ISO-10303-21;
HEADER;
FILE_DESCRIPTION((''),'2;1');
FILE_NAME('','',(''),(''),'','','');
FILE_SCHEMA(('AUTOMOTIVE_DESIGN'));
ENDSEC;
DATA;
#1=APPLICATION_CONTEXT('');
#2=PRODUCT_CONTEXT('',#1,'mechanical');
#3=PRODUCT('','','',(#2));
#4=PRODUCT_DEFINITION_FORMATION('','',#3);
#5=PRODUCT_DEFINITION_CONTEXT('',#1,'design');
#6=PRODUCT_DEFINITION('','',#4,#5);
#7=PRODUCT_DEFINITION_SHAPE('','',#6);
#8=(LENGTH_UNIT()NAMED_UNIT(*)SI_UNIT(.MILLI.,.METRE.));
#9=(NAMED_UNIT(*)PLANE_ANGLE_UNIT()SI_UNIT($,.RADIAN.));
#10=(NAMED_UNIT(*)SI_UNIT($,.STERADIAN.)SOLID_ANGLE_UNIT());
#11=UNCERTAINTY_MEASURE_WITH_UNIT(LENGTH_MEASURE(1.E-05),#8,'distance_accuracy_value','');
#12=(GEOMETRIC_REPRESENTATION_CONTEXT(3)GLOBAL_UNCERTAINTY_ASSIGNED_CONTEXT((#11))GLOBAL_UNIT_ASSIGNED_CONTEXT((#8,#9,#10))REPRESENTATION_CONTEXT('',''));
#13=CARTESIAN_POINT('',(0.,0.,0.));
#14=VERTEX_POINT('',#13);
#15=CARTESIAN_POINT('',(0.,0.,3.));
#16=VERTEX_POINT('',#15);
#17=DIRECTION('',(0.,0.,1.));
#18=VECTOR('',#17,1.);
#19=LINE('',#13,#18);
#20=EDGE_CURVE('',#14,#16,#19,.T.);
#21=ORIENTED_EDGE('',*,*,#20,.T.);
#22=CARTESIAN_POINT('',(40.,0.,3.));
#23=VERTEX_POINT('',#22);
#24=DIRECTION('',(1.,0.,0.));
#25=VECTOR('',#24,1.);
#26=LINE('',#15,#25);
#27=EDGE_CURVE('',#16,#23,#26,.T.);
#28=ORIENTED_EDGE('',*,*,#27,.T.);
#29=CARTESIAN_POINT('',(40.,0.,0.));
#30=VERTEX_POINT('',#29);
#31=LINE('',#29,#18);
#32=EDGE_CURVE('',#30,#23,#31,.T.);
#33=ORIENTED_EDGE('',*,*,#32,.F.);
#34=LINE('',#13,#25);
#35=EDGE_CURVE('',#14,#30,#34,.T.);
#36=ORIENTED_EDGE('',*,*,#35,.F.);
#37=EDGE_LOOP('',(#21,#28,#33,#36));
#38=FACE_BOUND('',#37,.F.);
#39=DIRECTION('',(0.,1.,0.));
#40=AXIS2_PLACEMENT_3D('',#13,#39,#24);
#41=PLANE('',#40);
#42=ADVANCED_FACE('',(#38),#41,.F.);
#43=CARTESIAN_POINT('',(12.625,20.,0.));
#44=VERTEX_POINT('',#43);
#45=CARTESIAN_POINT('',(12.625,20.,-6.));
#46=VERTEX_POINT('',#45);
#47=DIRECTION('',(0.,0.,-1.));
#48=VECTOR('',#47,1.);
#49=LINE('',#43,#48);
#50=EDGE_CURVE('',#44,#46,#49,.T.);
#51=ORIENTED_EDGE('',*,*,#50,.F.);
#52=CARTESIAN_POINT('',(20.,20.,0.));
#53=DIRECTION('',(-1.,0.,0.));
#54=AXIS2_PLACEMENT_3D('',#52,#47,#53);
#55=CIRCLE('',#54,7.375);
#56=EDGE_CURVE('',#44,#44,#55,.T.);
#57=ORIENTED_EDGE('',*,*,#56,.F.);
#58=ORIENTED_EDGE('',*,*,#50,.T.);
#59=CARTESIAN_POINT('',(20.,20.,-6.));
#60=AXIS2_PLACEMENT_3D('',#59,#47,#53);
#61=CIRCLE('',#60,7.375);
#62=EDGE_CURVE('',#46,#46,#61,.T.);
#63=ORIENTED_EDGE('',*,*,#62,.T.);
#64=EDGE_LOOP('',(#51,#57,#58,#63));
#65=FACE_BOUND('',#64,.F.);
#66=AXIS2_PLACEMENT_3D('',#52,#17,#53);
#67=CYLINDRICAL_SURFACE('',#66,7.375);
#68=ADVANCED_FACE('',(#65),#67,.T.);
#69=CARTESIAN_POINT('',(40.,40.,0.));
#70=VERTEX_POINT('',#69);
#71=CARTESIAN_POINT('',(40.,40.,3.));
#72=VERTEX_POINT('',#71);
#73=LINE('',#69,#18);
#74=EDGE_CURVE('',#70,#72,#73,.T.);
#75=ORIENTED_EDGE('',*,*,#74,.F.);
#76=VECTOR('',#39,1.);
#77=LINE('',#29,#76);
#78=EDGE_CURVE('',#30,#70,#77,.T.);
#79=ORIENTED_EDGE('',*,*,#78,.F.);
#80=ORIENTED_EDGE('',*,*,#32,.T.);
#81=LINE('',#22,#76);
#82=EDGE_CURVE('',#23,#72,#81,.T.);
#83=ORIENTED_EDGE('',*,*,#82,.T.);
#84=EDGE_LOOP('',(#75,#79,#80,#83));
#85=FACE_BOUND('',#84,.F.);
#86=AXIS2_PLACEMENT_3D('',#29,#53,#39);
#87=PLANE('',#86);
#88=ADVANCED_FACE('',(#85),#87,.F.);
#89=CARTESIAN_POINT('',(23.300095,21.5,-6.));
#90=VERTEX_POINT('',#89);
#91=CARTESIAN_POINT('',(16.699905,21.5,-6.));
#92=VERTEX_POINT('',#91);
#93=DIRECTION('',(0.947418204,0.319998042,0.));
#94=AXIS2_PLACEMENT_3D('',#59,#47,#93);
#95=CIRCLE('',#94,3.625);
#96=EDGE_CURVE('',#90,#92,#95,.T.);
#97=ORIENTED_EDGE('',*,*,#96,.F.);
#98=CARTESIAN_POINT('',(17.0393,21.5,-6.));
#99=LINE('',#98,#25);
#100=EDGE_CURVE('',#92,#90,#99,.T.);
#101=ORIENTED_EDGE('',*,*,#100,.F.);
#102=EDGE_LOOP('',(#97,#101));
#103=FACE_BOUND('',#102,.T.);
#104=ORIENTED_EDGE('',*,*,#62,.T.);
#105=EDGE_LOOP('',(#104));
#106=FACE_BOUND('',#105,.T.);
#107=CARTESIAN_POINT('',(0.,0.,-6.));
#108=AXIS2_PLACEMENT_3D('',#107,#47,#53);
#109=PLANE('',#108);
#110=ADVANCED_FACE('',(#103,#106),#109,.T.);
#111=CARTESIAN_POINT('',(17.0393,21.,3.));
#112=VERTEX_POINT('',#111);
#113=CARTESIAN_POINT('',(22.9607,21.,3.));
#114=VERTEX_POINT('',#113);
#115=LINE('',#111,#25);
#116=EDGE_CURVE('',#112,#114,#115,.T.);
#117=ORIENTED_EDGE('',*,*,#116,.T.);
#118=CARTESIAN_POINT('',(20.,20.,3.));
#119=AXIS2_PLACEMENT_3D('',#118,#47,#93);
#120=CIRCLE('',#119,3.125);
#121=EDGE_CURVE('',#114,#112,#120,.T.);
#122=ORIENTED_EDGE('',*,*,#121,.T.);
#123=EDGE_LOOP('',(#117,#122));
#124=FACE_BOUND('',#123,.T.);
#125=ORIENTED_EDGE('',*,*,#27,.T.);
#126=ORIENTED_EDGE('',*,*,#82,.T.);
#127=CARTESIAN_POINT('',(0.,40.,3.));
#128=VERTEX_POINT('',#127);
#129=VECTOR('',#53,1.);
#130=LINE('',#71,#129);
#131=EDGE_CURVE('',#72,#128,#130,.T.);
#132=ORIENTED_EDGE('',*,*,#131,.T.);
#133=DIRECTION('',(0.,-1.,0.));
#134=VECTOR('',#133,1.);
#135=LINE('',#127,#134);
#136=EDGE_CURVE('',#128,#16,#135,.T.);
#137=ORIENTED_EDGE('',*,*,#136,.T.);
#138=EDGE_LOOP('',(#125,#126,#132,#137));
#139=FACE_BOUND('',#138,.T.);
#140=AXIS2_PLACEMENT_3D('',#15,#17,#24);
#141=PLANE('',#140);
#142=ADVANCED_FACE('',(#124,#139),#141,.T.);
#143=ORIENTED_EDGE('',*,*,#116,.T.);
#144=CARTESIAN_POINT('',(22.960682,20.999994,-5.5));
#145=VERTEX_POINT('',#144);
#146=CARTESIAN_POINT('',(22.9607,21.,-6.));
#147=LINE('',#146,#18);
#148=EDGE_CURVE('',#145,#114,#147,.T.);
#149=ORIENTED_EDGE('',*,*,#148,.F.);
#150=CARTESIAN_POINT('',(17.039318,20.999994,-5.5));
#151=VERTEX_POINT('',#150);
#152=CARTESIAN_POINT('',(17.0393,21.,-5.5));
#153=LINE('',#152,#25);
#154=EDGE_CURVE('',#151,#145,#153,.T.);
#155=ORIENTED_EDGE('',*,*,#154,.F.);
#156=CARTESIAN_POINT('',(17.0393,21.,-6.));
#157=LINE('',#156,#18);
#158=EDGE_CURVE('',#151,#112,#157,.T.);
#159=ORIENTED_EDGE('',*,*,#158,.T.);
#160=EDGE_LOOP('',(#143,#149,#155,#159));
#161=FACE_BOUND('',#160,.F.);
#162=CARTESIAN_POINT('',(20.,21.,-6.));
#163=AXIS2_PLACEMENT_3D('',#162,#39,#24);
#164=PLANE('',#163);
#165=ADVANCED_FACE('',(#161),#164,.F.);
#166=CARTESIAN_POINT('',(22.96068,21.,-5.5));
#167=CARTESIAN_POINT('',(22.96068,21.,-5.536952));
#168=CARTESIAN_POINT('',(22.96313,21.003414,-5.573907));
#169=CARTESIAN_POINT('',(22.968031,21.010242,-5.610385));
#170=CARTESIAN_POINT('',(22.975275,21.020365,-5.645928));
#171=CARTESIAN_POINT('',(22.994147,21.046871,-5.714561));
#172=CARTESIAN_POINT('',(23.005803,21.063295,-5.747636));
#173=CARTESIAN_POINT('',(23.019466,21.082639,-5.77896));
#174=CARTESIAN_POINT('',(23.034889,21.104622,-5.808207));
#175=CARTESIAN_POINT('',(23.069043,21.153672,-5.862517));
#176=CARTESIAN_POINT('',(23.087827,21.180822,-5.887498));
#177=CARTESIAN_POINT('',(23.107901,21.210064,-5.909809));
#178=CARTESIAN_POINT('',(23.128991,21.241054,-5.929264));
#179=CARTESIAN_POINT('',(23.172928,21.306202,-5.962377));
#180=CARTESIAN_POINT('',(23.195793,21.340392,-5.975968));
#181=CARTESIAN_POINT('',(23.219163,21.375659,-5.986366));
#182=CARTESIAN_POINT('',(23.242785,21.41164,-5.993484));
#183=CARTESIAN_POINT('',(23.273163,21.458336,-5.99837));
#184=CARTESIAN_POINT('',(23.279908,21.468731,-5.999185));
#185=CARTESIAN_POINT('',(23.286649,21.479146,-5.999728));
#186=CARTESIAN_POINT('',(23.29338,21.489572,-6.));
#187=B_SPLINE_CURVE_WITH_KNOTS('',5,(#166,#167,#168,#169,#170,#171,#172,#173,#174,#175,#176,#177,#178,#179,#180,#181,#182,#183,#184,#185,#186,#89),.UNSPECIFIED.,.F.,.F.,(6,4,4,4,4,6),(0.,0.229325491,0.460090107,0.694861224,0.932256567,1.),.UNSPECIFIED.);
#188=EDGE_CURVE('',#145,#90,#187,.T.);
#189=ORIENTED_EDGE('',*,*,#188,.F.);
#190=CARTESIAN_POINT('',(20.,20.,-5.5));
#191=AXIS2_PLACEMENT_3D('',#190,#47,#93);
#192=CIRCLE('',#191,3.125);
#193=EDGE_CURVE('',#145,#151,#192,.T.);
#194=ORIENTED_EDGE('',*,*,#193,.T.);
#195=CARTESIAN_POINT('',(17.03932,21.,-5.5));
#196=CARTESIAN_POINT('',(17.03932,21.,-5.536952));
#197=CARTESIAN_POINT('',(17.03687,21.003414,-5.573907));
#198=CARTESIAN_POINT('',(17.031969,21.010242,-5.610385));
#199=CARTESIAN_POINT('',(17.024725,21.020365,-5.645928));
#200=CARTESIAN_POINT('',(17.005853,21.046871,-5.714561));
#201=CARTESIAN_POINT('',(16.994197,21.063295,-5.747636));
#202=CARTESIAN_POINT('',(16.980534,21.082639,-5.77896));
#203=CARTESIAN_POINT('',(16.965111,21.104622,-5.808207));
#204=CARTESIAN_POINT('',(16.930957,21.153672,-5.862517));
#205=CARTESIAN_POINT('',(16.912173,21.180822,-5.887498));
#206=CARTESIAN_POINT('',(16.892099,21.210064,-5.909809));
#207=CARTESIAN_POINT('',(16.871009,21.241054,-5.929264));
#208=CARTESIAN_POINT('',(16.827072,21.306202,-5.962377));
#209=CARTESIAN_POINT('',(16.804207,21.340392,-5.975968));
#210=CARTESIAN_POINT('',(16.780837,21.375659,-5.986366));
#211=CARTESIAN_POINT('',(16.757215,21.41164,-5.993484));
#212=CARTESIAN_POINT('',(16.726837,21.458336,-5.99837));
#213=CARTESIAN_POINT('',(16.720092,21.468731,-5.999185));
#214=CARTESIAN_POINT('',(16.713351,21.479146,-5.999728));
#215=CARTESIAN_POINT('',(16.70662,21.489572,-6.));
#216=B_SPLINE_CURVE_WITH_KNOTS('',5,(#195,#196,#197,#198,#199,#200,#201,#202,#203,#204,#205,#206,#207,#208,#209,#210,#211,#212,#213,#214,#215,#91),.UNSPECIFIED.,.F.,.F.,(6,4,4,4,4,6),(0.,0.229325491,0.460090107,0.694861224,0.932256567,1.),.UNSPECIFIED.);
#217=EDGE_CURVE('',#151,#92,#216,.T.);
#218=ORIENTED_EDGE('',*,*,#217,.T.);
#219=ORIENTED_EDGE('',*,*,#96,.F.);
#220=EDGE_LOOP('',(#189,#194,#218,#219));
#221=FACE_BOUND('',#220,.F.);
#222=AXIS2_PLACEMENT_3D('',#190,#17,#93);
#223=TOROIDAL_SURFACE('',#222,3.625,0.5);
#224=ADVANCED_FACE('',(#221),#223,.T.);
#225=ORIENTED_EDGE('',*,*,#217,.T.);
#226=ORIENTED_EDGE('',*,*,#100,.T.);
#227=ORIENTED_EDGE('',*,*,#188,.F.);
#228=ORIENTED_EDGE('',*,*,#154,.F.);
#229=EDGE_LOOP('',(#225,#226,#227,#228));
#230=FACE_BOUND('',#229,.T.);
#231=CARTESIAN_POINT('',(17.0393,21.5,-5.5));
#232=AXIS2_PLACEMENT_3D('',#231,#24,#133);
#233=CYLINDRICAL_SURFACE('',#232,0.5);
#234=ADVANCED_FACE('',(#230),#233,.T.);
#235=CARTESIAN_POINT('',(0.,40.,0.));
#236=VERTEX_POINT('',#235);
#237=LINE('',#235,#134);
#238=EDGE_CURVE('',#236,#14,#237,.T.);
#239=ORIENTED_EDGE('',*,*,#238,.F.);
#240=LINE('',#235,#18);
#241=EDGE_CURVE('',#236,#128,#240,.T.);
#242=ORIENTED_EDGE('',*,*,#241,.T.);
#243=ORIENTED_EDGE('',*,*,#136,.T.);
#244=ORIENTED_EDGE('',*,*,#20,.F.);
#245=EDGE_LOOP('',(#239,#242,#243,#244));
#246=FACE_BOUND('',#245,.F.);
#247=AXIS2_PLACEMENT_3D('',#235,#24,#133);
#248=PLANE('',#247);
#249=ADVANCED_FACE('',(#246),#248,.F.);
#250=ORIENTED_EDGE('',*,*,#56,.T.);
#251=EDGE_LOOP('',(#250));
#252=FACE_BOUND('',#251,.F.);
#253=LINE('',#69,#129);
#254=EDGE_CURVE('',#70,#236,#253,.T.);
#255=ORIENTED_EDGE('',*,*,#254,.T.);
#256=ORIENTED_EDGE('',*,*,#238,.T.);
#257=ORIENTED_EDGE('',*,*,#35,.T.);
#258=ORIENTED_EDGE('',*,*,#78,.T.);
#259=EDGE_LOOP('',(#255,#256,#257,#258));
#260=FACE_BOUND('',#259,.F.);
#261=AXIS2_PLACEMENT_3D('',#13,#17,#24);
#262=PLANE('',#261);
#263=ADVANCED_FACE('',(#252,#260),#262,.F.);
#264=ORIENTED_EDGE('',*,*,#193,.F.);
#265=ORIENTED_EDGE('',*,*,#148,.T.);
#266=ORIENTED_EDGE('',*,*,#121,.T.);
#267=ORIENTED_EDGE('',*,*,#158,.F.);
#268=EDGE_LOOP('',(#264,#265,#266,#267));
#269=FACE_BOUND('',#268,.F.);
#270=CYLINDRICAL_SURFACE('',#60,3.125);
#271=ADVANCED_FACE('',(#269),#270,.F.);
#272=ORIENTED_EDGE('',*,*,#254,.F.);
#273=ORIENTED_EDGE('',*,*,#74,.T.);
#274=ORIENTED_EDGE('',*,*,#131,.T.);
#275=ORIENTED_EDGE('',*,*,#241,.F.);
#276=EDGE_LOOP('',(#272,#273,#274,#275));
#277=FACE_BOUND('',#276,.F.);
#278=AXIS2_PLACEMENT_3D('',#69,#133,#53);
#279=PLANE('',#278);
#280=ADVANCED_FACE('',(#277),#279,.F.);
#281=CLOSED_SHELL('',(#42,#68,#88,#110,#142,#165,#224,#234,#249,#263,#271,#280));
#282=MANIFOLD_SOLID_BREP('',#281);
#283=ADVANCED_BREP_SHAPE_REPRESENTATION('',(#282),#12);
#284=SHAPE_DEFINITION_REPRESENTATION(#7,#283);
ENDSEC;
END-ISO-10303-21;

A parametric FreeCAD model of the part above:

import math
import FreeCAD as App
import Part
import Sketcher
from FreeCAD import Vector


def edges_at(feature, points):
    """Names of the edges that pass closest to the given points."""
    edges = feature.Shape.Edges
    near = lambda p: min(range(len(edges)), key=lambda i: edges[i].distToShape(Part.Vertex(*p))[0])
    return sorted({f"Edge{near(p) + 1}" for p in points})


def add_polygon(sketch, points):
    """Adds a closed chain of lines whose ends are joined by coincident constraints."""
    first, n = sketch.GeometryCount, len(points)
    for a, b in zip(points, points[1:] + points[:1]):
        sketch.addGeometry(Part.LineSegment(App.Vector(*a, 0), App.Vector(*b, 0)), False)
    for i in range(n):
        sketch.addConstraint(Sketcher.Constraint("Coincident", first + i, 2, first + (i + 1) % n, 1))

doc = App.newDocument("Part")
body = doc.addObject("PartDesign::Body", "Body")

# Sketch on XY plane
sketch1 = doc.addObject("Sketcher::SketchObject", "Sketch")
body.addObject(sketch1)
sketch1.AttachmentSupport = (doc.XY_Plane, [""])
sketch1.MapMode = "FlatFace"
add_polygon(sketch1, [(0, 40), (0, 0), (40, 0), (40, 40)])  # lines 0-3
sketch1.addConstraint([
    Sketcher.Constraint("Vertical", 0),
    Sketcher.Constraint("Horizontal", 1),
    Sketcher.Constraint("Vertical", 2),
    Sketcher.Constraint("Horizontal", 3),
    Sketcher.Constraint("Coincident", 0, 2, -1, 1),
    Sketcher.Constraint("Equal", 3, 0),
    Sketcher.Constraint("DistanceX", 1, 1, 1, 2, 40.0),
])
pad1 = doc.addObject("PartDesign::Pad", "Pad")
body.addObject(pad1)
pad1.Profile = sketch1
pad1.Length = 3

# Sketch on XY plane
sketch2 = doc.addObject("Sketcher::SketchObject", "Sketch001")
body.addObject(sketch2)
sketch2.AttachmentSupport = (doc.XY_Plane, [""])
sketch2.MapMode = "FlatFace"
sketch2.addGeometry(Part.Circle(Vector(20, 20, 0), Vector(0, 0, 1), 7), False)
sketch2.addConstraint([
    Sketcher.Constraint("Diameter", 0, 14.75),
    Sketcher.Constraint("DistanceX", -1, 1, 0, 3, 20.0),
    Sketcher.Constraint("DistanceY", -1, 1, 0, 3, 20.0),
])
pad2 = doc.addObject("PartDesign::Pad", "Pad001")
body.addObject(pad2)
pad2.Profile = sketch2
pad2.Length = 6
pad2.Reversed = True

# Sketch on XY plane
sketch3 = doc.addObject("Sketcher::SketchObject", "Sketch002")
body.addObject(sketch3)
sketch3.AttachmentSupport = (doc.XY_Plane, [""])
sketch3.MapMode = "FlatFace"
sketch3.AttachmentOffset = App.Placement(Vector(0, 0, -6), App.Rotation())
sketch3.addGeometry([
    Part.ArcOfCircle(Part.Circle(Vector(20, 20, 0), Vector(0, 0, 1), 3.1), math.radians(161), math.radians(379)),
    Part.LineSegment(Vector(23, 21, 0), Vector(17, 21, 0)),
], False)
sketch3.addConstraint([
    Sketcher.Constraint("Coincident", 0, 1, 1, 2),
    Sketcher.Constraint("Coincident", 1, 1, 0, 2),
    Sketcher.Constraint("Horizontal", 1),
    Sketcher.Constraint("Radius", 0, 3.125),
    Sketcher.Constraint("DistanceY", 0, 3, 0, 1, 1.0),
    Sketcher.Constraint("DistanceX", -1, 1, 0, 3, 20.0),
    Sketcher.Constraint("DistanceY", -1, 1, 0, 3, 20.0),
])
pocket1 = doc.addObject("PartDesign::Pocket", "Pocket")
body.addObject(pocket1)
pocket1.Profile = sketch3
pocket1.Type = "UpToFirst"
pocket1.Reversed = True
doc.recompute()

fillet = doc.addObject("PartDesign::Fillet", "Fillet")
body.addObject(fillet)
fillet.Base = (pocket1, edges_at(pocket1, [(20, 16.875, -6), (20, 21, -6)]))
fillet.Radius = 0.5

doc.recompute()
